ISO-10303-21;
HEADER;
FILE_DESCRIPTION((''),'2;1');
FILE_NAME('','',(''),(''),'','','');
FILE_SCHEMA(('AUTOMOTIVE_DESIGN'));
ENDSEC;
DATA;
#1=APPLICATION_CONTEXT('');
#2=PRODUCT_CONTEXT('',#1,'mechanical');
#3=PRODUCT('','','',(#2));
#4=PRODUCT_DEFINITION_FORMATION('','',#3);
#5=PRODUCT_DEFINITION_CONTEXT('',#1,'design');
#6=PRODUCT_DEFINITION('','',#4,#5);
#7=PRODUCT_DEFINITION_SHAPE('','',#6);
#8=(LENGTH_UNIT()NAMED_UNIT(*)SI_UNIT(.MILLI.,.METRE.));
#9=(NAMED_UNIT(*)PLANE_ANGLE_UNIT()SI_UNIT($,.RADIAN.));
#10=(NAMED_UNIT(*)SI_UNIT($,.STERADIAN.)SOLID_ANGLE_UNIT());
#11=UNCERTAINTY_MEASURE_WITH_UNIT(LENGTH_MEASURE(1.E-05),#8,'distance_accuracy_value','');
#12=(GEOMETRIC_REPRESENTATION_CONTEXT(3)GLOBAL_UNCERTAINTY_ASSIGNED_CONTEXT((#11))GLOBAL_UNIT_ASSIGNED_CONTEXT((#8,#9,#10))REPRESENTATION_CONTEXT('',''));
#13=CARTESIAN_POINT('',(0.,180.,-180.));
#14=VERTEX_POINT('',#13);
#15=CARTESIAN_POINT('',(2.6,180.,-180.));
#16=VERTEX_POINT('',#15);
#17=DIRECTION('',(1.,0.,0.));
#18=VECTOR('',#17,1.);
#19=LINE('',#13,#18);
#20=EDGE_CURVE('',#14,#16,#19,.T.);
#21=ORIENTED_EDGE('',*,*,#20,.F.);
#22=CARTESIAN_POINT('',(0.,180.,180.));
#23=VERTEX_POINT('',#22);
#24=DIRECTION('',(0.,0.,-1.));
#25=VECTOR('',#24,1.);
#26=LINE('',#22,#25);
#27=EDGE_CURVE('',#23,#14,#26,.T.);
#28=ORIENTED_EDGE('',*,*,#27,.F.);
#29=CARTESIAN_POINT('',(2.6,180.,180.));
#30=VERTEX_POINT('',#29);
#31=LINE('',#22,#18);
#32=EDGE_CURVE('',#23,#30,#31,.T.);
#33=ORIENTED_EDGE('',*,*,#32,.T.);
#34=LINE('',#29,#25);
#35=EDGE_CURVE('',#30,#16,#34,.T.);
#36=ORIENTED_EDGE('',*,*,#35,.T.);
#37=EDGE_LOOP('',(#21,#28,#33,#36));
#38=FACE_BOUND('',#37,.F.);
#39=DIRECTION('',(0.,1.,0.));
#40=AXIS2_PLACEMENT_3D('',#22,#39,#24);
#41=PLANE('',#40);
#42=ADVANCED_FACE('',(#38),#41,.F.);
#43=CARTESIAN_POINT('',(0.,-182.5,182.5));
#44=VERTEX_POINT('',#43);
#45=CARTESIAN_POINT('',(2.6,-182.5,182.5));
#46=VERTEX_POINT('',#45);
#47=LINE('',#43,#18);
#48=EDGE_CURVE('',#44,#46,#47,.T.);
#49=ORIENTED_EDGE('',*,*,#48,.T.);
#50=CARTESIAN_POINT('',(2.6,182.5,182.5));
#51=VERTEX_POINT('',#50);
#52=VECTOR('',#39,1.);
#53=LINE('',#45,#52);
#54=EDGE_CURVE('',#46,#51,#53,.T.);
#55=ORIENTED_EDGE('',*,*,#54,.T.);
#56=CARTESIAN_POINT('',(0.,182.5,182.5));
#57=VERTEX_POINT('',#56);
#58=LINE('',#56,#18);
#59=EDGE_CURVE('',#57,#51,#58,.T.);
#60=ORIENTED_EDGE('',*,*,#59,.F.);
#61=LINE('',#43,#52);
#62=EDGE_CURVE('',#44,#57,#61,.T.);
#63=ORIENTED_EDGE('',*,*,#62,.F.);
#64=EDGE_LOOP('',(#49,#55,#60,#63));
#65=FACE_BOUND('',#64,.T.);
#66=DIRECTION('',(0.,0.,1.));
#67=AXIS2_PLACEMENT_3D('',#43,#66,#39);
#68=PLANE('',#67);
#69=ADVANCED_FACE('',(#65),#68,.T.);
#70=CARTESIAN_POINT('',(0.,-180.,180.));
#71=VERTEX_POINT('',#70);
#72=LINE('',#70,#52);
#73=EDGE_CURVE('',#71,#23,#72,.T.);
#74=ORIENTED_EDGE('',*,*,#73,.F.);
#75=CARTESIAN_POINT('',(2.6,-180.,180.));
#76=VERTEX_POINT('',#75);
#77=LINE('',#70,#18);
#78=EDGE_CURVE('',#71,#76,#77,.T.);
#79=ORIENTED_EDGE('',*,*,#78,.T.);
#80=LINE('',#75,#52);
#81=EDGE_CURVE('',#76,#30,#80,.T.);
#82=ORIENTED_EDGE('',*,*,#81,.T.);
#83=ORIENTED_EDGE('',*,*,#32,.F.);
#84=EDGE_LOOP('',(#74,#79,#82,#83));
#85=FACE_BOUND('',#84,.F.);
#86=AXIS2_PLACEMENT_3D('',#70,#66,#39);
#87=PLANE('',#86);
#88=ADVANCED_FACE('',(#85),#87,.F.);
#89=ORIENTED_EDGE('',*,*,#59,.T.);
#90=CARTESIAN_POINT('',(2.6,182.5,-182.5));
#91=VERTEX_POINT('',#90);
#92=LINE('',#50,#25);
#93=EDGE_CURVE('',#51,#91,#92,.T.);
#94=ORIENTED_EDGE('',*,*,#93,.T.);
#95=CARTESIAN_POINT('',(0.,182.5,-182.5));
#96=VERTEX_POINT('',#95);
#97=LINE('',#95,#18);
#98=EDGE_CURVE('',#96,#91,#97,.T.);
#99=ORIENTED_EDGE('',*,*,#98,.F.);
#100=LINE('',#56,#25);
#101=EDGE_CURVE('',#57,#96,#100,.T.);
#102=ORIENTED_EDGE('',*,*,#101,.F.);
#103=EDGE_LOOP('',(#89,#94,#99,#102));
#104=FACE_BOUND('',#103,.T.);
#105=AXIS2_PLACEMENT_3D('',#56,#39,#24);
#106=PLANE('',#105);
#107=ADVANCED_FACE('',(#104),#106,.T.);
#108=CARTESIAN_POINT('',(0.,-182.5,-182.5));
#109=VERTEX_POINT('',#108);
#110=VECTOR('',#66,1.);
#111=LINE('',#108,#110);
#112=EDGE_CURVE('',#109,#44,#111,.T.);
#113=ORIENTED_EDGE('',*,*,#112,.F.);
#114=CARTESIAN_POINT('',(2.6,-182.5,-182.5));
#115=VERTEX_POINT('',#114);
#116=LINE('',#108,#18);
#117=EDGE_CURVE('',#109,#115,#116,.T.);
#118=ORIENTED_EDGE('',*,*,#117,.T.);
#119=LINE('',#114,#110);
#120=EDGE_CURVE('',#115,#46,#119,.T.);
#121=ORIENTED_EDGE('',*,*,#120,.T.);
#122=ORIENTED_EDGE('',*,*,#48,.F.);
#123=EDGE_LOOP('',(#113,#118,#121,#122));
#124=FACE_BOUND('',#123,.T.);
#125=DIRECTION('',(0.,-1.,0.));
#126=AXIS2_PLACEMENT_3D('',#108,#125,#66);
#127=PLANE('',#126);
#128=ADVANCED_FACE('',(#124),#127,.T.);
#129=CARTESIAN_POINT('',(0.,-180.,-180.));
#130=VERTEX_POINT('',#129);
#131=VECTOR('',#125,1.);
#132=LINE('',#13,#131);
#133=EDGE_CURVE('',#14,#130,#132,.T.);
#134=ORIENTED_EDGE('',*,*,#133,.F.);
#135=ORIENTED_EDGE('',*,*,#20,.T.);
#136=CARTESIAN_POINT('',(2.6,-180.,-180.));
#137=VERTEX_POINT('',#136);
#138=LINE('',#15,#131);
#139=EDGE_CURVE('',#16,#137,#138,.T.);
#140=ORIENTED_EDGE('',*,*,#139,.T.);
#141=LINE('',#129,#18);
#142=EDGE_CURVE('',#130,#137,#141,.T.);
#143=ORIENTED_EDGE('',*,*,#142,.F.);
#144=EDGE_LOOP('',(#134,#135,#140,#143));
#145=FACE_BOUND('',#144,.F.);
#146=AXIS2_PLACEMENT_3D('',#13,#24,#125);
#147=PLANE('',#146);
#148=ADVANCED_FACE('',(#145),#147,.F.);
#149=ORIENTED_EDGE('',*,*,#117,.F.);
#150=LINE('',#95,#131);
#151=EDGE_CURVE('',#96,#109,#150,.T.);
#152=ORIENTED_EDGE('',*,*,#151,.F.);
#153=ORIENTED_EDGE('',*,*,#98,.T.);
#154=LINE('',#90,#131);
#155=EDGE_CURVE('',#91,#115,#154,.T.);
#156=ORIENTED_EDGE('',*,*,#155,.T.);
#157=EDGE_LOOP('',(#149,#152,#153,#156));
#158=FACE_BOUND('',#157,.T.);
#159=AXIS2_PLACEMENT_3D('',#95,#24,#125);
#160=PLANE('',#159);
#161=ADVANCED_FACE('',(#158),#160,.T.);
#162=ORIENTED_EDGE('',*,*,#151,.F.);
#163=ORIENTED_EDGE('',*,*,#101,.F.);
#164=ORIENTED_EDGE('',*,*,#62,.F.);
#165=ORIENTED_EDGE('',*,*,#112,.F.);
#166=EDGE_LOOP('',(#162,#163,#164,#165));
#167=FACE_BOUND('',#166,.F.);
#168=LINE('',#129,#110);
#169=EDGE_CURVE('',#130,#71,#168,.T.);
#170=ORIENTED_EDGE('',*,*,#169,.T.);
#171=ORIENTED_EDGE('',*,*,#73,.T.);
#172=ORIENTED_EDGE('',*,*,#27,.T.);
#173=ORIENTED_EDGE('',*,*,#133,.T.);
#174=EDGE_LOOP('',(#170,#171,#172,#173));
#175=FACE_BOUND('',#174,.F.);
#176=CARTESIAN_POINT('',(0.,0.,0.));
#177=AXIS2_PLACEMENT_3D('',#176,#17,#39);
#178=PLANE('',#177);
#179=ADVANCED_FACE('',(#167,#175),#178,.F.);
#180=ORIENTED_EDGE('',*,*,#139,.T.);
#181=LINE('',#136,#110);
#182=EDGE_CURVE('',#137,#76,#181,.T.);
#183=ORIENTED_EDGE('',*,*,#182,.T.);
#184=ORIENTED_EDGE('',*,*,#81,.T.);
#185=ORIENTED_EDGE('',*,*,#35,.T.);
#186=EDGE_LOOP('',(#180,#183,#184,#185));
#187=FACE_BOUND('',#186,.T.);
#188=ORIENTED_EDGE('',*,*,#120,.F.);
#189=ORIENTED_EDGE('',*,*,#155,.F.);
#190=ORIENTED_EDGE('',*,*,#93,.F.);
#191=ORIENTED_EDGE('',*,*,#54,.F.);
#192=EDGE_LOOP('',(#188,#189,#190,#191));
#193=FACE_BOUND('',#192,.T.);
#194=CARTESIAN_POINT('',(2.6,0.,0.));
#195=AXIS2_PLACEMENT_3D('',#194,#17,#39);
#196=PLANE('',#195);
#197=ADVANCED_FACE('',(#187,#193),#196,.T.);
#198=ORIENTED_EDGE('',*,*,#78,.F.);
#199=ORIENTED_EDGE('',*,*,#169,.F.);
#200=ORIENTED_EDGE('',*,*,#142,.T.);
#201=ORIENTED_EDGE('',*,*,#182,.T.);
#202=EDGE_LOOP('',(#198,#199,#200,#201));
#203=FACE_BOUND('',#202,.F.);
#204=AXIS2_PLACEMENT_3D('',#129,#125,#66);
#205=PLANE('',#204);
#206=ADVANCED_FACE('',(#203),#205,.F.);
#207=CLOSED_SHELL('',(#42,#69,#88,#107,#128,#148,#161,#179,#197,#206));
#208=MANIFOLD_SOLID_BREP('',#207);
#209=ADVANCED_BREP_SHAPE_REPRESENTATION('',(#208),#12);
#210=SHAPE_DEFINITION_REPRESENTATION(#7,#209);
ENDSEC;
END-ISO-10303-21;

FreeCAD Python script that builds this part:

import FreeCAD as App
import Part
import Sketcher
Q = App.Units.Quantity


def add_polygon(sketch, points):
    """Adds a closed chain of lines whose ends are joined by coincident constraints."""
    first, n = sketch.GeometryCount, len(points)
    for a, b in zip(points, points[1:] + points[:1]):
        sketch.addGeometry(Part.LineSegment(App.Vector(*a, 0), App.Vector(*b, 0)), False)
    for i in range(n):
        sketch.addConstraint(Sketcher.Constraint("Coincident", first + i, 2, first + (i + 1) % n, 1))

doc = App.newDocument("Part")
body = doc.addObject("PartDesign::Body", "Body")

# Sketch on YZ plane
sketch1 = body.newObject("Sketcher::SketchObject", "Sketch")
sketch1.AttachmentSupport = (doc.getObject("YZ_Plane"), [""])
sketch1.MapMode = "FlatFace"
add_polygon(sketch1, [(182.5, 182.5), (-182.5, 182.5), (-182.5, -182.5), (182.5, -182.5)])  # lines 0-3
add_polygon(sketch1, [(-180, -180), (-180, 180), (180, 180), (180, -180)])  # lines 4-7
sketch1.addConstraint([
    Sketcher.Constraint("Horizontal", 0),
    Sketcher.Constraint("Vertical", 1),
    Sketcher.Constraint("Horizontal", 2),
    Sketcher.Constraint("Vertical", 3),
    Sketcher.Constraint("Vertical", 4),
    Sketcher.Constraint("Horizontal", 5),
    Sketcher.Constraint("Vertical", 6),
    Sketcher.Constraint("Horizontal", 7),
    Sketcher.Constraint("Symmetric", 0, 2, 2, 2, -1, 1),
    Sketcher.Constraint("Symmetric", 4, 2, 6, 2, -1, 1),
    Sketcher.Constraint("Equal", 2, 1),
    Sketcher.Constraint("Equal", 7, 4),
    Sketcher.Constraint("DistanceX", 0, 2, 0, 1, Q("365 mm")),
    Sketcher.Constraint("DistanceX", 5, 1, 5, 2, Q("360 mm")),
])
pad1 = body.newObject("PartDesign::Pad", "Pad")
pad1.Profile = sketch1
pad1.Length = 2.6

doc.recompute()
